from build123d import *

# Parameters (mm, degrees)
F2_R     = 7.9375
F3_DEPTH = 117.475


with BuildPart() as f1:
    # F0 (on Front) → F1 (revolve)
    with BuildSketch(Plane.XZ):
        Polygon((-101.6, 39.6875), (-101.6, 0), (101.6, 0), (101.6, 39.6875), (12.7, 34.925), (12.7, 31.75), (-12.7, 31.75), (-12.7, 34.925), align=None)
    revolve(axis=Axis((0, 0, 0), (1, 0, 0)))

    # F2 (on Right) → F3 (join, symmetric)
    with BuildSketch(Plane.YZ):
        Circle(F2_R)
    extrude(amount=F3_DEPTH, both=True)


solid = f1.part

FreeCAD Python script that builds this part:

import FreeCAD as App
import Part
import Sketcher
Q = App.Units.Quantity


def add_polygon(sketch, points):
    """Adds a closed chain of lines whose ends are joined by coincident constraints."""
    first, n = sketch.GeometryCount, len(points)
    for a, b in zip(points, points[1:] + points[:1]):
        sketch.addGeometry(Part.LineSegment(App.Vector(*a, 0), App.Vector(*b, 0)), False)
    for i in range(n):
        sketch.addConstraint(Sketcher.Constraint("Coincident", first + i, 2, first + (i + 1) % n, 1))

doc = App.newDocument("Part")
body = doc.addObject("PartDesign::Body", "Body")

# Sketch on XZ plane
sketch1 = body.newObject("Sketcher::SketchObject", "Sketch")
sketch1.AttachmentSupport = (doc.getObject("XZ_Plane"), [""])
sketch1.MapMode = "FlatFace"
add_polygon(sketch1, [(-101.6, 39.6875), (-101.6, 0), (101.6, 0), (101.6, 39.6875), (12.7, 34.925), (12.7, 31.75), (-12.7, 31.75), (-12.7, 34.925)])  # lines 0-7
sketch1.addConstraint(Sketcher.Constraint("Vertical", 0))
sketch1.addConstraint(Sketcher.Constraint("Horizontal", 1))
sketch1.addConstraint(Sketcher.Constraint("Vertical", 2))
sketch1.addConstraint(Sketcher.Constraint("Vertical", 4))
sketch1.addConstraint(Sketcher.Constraint("Horizontal", 5))
sketch1.addConstraint(Sketcher.Constraint("Vertical", 6))
sketch1.addConstraint(Sketcher.Constraint("Symmetric", 0, 2, 1, 2, -1, 1))
sketch1.addConstraint(Sketcher.Constraint("Symmetric", 3, 2, 6, 2, -2))
sketch1.addConstraint(Sketcher.Constraint("Horizontal", 2, 2, 7, 2))
sketch1.addConstraint(Sketcher.Constraint("DistanceX", 1, 1, 1, 2, Q("8 in")))
sketch1.addConstraint(Sketcher.Constraint("DistanceX", 5, 2, 5, 1, Q("1 in")))
sketch1.addConstraint(Sketcher.Constraint("DistanceY", 0, 2, 0, 1, Q("1.5625 in")))
sketch1.addConstraint(Sketcher.Constraint("DistanceY", 4, 2, 4, 1, Q("0.125 in")))
sketch1.addConstraint(Sketcher.Constraint("DistanceY", -1, 1, 4, 2, Q("1.25 in")))
revolution = body.newObject("PartDesign::Revolution", "Revolution")
revolution.Profile = sketch1
revolution.ReferenceAxis = (sketch1, ["H_Axis"])
revolution.Angle = 360

# Sketch on YZ plane
sketch2 = body.newObject("Sketcher::SketchObject", "Sketch001")
sketch2.AttachmentSupport = (doc.getObject("YZ_Plane"), [""])
sketch2.MapMode = "FlatFace"
sketch2.addGeometry(Part.Circle(App.Vector(0, 0, 0), App.Vector(0, 0, 1), 7.9375), False)
sketch2.addConstraint(Sketcher.Constraint("Coincident", 0, 3, -1, 1))
sketch2.addConstraint(Sketcher.Constraint("Diameter", 0, Q("0.625 in")))
pad1 = body.newObject("PartDesign::Pad", "Pad")
pad1.Profile = sketch2
pad1.Length = Q("9.25 in")
pad1.Midplane = True

doc.recompute()
